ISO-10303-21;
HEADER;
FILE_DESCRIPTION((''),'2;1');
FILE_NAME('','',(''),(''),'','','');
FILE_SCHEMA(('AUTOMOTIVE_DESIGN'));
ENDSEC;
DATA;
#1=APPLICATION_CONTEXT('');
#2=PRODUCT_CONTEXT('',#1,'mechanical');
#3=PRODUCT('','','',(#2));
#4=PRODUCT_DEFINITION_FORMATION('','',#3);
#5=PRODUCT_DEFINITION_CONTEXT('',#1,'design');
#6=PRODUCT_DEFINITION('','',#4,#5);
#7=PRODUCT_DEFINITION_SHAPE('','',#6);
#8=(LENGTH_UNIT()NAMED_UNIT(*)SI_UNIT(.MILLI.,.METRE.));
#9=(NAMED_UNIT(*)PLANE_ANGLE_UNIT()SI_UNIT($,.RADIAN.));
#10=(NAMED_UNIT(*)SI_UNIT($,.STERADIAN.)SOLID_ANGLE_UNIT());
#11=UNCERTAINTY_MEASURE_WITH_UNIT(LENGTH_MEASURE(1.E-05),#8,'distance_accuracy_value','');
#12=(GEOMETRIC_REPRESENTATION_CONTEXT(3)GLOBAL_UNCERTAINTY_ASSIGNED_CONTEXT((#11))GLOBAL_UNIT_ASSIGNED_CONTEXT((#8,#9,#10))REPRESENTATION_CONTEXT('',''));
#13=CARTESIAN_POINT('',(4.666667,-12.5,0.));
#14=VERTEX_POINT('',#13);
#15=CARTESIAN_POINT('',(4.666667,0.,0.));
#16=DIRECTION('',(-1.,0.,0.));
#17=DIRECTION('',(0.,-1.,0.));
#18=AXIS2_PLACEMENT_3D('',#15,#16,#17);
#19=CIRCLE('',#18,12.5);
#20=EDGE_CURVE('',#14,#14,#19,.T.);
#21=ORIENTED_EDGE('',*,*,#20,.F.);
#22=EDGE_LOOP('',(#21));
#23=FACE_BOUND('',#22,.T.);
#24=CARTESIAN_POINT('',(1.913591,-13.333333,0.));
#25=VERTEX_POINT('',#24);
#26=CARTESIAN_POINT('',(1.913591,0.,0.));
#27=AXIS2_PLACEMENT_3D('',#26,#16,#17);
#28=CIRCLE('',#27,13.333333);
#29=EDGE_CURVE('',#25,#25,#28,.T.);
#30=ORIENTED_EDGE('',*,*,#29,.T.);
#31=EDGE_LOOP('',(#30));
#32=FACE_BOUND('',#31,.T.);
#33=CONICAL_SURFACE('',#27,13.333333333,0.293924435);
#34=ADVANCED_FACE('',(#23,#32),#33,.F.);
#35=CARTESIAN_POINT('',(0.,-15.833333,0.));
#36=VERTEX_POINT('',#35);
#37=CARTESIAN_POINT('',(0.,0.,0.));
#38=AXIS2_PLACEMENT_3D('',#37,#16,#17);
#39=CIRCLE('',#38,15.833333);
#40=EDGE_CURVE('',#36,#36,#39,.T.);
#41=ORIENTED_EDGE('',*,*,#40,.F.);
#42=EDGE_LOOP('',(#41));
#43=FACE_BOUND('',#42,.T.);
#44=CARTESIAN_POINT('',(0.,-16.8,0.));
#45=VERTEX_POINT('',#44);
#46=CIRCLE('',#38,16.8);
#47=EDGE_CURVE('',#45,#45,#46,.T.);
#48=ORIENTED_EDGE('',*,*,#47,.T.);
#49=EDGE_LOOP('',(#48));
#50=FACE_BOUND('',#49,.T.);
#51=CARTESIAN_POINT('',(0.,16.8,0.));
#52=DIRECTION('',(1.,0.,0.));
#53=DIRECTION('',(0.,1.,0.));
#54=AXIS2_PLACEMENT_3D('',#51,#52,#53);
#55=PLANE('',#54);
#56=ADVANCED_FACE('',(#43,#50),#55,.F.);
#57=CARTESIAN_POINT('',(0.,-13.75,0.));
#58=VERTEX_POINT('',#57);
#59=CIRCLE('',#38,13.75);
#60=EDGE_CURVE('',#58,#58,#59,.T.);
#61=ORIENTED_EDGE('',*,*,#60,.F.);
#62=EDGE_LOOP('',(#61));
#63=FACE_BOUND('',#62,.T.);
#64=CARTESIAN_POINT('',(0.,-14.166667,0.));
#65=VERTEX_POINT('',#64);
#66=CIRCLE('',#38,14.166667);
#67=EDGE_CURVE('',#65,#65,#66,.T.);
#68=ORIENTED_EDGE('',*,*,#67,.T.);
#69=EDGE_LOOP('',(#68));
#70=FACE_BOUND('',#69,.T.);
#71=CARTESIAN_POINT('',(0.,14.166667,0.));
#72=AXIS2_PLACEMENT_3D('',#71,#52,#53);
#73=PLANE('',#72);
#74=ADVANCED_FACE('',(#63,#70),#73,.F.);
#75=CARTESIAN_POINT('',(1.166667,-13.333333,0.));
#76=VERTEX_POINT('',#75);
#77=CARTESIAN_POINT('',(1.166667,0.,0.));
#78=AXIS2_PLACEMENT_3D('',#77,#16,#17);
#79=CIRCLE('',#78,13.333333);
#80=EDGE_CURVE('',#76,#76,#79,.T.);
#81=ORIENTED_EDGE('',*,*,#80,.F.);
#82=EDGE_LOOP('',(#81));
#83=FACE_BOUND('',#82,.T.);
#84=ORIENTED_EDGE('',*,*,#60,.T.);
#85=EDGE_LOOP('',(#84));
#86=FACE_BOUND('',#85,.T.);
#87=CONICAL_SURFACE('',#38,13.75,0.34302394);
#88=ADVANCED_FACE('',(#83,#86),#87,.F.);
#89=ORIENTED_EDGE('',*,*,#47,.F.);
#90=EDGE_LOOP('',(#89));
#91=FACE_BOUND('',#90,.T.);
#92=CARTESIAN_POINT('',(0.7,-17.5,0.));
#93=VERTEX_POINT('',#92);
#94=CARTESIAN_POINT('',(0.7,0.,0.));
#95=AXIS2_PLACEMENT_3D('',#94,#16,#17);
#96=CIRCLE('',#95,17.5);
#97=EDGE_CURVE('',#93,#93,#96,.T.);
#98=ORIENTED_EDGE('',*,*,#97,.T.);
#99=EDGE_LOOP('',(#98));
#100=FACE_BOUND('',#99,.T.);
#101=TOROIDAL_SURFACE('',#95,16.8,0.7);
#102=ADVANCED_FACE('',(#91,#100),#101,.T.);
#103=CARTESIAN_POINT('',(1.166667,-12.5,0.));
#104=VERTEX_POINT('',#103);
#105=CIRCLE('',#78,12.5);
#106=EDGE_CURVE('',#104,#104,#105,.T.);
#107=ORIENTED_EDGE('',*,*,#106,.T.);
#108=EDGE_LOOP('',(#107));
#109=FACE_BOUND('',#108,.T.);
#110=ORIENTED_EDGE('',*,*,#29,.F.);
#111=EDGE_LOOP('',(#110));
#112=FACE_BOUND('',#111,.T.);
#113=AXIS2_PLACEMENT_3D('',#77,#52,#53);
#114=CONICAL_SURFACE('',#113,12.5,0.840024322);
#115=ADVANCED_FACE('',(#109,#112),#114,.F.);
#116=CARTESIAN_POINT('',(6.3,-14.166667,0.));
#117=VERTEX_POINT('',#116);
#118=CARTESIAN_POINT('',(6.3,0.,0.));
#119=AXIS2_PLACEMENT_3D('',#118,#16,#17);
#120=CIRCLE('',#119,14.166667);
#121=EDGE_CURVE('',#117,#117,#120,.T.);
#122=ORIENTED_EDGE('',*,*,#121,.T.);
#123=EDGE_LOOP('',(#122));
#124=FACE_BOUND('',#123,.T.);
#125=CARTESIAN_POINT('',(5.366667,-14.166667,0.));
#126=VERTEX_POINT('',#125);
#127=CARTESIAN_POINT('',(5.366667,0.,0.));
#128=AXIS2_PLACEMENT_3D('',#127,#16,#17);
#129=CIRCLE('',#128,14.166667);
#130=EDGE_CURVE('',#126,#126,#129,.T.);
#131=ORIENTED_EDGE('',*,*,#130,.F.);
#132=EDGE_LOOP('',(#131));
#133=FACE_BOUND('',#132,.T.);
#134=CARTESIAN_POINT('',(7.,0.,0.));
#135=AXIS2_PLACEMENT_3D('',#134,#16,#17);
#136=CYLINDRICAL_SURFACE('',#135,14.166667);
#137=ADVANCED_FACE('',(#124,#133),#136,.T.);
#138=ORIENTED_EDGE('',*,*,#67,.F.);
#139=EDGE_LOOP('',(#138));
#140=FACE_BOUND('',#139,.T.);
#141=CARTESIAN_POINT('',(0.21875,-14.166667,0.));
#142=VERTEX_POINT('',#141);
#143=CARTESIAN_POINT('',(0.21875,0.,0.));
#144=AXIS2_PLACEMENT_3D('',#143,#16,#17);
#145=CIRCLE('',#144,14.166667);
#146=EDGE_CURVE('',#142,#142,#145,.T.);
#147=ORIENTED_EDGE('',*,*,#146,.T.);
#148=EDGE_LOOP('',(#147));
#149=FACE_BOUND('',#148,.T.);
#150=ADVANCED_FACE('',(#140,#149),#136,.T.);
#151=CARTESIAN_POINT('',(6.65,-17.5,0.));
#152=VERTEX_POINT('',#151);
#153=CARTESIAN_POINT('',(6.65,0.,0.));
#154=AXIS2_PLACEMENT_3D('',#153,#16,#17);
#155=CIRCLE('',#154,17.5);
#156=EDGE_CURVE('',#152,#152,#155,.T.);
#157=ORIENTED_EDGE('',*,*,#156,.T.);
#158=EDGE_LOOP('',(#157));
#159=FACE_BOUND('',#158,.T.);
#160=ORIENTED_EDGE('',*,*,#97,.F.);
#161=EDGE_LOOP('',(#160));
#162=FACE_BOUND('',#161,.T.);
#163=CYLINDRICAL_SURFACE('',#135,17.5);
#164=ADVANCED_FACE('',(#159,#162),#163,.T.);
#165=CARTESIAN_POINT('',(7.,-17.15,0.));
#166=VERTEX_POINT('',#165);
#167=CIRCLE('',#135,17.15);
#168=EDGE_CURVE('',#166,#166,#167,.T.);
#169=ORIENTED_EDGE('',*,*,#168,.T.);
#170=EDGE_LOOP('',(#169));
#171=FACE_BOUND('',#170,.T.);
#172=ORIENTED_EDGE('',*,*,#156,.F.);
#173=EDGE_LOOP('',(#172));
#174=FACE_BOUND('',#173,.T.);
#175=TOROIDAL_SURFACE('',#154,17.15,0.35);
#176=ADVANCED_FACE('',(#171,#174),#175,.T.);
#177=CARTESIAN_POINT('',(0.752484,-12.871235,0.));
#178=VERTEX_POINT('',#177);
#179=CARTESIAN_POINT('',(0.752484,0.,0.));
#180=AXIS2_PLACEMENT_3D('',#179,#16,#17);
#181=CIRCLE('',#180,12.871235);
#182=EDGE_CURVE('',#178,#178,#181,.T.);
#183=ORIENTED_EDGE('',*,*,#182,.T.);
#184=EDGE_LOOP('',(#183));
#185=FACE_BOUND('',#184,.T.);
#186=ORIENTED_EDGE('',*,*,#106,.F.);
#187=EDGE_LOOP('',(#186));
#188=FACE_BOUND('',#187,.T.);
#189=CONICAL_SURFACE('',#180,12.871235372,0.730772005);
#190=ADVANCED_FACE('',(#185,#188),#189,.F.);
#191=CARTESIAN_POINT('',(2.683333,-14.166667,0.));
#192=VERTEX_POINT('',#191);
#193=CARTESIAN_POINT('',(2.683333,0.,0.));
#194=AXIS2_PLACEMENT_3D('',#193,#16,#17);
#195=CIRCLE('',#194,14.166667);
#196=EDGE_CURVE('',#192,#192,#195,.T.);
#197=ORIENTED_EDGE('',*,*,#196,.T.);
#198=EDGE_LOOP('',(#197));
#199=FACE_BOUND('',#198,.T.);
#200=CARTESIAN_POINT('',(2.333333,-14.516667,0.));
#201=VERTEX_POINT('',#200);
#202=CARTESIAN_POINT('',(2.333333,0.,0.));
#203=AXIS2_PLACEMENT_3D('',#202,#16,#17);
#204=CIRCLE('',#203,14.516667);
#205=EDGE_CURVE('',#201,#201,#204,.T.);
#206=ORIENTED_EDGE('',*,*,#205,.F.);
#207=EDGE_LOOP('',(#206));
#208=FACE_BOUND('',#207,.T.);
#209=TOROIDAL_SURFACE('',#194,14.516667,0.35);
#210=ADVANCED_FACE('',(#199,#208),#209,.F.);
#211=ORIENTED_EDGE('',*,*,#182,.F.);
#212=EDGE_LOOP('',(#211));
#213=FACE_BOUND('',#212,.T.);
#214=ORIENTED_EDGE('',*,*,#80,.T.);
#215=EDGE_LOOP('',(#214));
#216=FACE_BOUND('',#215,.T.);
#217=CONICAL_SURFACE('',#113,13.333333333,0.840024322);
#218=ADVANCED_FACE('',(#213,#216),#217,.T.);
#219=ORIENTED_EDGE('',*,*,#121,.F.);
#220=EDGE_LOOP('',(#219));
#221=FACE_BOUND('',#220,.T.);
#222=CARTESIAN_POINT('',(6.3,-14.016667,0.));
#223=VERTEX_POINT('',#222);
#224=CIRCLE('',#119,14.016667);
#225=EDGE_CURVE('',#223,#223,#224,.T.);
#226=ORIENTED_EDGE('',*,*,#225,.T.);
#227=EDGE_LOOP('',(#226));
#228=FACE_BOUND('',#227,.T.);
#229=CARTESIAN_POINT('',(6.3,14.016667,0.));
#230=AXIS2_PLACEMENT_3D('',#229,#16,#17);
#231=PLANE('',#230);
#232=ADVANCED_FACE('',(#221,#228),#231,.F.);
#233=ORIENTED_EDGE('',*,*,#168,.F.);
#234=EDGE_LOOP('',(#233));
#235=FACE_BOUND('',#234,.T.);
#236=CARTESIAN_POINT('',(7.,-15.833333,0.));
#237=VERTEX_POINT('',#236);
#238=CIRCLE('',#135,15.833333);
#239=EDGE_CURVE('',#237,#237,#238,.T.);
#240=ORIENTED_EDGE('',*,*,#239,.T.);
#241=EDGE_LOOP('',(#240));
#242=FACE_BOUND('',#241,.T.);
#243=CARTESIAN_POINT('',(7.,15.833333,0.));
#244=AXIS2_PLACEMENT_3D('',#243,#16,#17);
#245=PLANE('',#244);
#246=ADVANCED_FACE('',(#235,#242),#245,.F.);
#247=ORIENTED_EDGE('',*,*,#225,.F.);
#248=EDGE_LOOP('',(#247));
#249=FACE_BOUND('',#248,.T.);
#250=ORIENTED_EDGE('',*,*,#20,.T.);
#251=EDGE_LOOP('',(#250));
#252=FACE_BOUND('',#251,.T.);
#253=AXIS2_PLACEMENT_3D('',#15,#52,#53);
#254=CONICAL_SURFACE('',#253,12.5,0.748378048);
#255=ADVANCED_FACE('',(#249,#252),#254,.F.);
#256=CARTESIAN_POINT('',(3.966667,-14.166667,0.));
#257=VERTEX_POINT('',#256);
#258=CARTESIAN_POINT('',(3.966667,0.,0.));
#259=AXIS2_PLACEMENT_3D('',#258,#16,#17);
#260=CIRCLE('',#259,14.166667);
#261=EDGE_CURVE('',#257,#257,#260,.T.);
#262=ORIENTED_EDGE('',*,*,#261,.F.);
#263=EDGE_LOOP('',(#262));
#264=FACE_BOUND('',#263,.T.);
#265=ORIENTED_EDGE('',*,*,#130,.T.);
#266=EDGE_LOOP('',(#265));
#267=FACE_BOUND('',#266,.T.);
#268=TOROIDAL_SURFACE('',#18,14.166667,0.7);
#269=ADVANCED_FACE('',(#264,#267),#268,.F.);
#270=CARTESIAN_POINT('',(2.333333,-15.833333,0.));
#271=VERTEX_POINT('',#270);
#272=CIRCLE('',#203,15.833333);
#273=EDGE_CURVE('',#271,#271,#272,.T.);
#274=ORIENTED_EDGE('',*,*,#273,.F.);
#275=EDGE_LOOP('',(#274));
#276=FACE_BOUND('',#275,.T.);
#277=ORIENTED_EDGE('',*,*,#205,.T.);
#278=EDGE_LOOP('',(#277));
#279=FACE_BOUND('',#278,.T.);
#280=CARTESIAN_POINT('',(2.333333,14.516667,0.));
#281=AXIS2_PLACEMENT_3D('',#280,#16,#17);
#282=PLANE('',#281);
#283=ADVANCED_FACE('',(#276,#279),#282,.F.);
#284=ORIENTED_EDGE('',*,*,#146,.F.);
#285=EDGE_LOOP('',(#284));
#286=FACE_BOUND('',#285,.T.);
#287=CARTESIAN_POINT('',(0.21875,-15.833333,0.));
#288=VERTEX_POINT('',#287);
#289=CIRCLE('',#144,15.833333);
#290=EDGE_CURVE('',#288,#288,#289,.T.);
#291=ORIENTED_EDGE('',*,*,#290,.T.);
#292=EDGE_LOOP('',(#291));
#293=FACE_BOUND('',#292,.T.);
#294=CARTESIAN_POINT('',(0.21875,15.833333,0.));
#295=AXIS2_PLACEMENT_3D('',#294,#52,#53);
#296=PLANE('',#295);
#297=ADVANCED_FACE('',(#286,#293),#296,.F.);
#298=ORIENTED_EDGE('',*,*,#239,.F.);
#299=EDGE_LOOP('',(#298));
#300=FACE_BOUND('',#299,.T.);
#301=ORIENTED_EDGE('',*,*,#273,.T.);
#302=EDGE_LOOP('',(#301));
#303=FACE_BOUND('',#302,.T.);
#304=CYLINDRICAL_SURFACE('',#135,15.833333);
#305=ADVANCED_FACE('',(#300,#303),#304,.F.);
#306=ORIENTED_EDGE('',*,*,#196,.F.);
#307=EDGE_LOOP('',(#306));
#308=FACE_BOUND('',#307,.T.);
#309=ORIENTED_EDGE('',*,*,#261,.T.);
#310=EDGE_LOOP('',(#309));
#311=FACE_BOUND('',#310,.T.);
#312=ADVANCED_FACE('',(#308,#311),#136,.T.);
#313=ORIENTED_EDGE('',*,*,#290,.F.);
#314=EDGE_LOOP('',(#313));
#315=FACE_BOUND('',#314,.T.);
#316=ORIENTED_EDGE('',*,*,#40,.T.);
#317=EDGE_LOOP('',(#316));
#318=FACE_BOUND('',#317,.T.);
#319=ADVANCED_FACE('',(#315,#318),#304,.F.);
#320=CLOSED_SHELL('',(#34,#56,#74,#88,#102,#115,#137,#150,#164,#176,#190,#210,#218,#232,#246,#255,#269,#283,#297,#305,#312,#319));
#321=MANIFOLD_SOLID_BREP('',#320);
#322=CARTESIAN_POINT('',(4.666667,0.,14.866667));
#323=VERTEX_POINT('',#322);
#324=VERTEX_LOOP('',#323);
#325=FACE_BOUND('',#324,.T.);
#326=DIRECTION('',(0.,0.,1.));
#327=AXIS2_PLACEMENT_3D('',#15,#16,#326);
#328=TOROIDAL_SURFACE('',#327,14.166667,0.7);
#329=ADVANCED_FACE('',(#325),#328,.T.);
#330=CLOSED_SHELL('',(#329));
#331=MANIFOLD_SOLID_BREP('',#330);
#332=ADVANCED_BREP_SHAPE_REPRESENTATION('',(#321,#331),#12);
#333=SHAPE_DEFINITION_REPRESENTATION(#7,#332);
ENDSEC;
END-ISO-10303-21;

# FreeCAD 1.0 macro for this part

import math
import FreeCAD as App
import Part
import Sketcher

doc = App.newDocument("Part")
params = doc.addObject("Spreadsheet::Sheet", "Params")
for row, (alias, value) in enumerate([
    ("sketch1_radius", "0.7 mm"),
    ("sketch1_radius2", "0.35 mm"),
    ("sketch1_height", "0.15 mm"),
    ("revolution_angle", "360 deg"),
    ("sketch2_diameter", "1.4 mm"),
    ("revolution2_angle", "360 deg"),
], start=1):
    params.set(f"A{row}", alias)
    params.set(f"B{row}", "=" + value)
    params.setAlias(f"B{row}", alias)

body = doc.addObject("PartDesign::Body", "Body")

sketch1 = body.newObject("Sketcher::SketchObject", "Sketch")
sketch1.AttachmentSupport = (doc.getObject("XY_Plane"), [""])
sketch1.MapMode = "FlatFace"
sketch1.addGeometry(Part.LineSegment(App.Vector(0, 15.83, 0), App.Vector(0.22, 15.83, 0)), False)
sketch1.addGeometry(Part.LineSegment(App.Vector(0.22, 15.83, 0), App.Vector(0.22, 14.17, 0)), False)
sketch1.addGeometry(Part.LineSegment(App.Vector(0.22, 14.17, 0), App.Vector(0, 14.17, 0)), False)
sketch1.addGeometry(Part.LineSegment(App.Vector(0, 14.17, 0), App.Vector(0, 13.75, 0)), False)
sketch1.addGeometry(Part.LineSegment(App.Vector(0, 13.75, 0), App.Vector(1.17, 13.33, 0)), False)
sketch1.addGeometry(Part.LineSegment(App.Vector(1.17, 13.33, 0), App.Vector(0.75, 12.87, 0)), False)
sketch1.addGeometry(Part.LineSegment(App.Vector(0.75, 12.87, 0), App.Vector(1.17, 12.5, 0)), False)
sketch1.addGeometry(Part.LineSegment(App.Vector(1.17, 12.5, 0), App.Vector(1.91, 13.33, 0)), False)
sketch1.addGeometry(Part.LineSegment(App.Vector(1.91, 13.33, 0), App.Vector(4.67, 12.5, 0)), False)
sketch1.addGeometry(Part.LineSegment(App.Vector(4.67, 12.5, 0), App.Vector(6.3, 14.02, 0)), False)
sketch1.addGeometry(Part.LineSegment(App.Vector(6.3, 14.02, 0), App.Vector(6.3, 14.17, 0)), False)
sketch1.addGeometry(Part.LineSegment(App.Vector(6.3, 14.17, 0), App.Vector(5.37, 14.17, 0)), False)
sketch1.addGeometry(Part.ArcOfCircle(Part.Circle(App.Vector(4.67, 14.17, 0), App.Vector(0, 0, 1), 0.7), math.radians(180), math.radians(360)), False)
sketch1.addGeometry(Part.LineSegment(App.Vector(3.97, 14.17, 0), App.Vector(2.68, 14.17, 0)), False)
sketch1.addGeometry(Part.ArcOfCircle(Part.Circle(App.Vector(2.68, 14.52, 0), App.Vector(0, 0, 1), 0.35), math.radians(180), math.radians(270)), False)
sketch1.addGeometry(Part.LineSegment(App.Vector(2.33, 14.52, 0), App.Vector(2.33, 15.83, 0)), False)
sketch1.addGeometry(Part.LineSegment(App.Vector(2.33, 15.83, 0), App.Vector(7, 15.83, 0)), False)
sketch1.addGeometry(Part.LineSegment(App.Vector(7, 15.83, 0), App.Vector(7, 17.15, 0)), False)
sketch1.addGeometry(Part.ArcOfCircle(Part.Circle(App.Vector(6.65, 17.15, 0), App.Vector(0, 0, 1), 0.35), math.radians(0), math.radians(90)), False)
sketch1.addGeometry(Part.LineSegment(App.Vector(6.65, 17.5, 0), App.Vector(0.7, 17.5, 0)), False)
sketch1.addGeometry(Part.ArcOfCircle(Part.Circle(App.Vector(0.7, 16.8, 0), App.Vector(0, 0, 1), 0.7), math.radians(90), math.radians(180)), False)
sketch1.addGeometry(Part.LineSegment(App.Vector(0, 16.8, 0), App.Vector(0, 15.83, 0)), False)
sketch1.addConstraint(Sketcher.Constraint("Coincident", 0, 2, 1, 1))
sketch1.addConstraint(Sketcher.Constraint("Coincident", 1, 2, 2, 1))
sketch1.addConstraint(Sketcher.Constraint("Coincident", 2, 2, 3, 1))
sketch1.addConstraint(Sketcher.Constraint("Coincident", 3, 2, 4, 1))
sketch1.addConstraint(Sketcher.Constraint("Coincident", 4, 2, 5, 1))
sketch1.addConstraint(Sketcher.Constraint("Coincident", 5, 2, 6, 1))
sketch1.addConstraint(Sketcher.Constraint("Coincident", 6, 2, 7, 1))
sketch1.addConstraint(Sketcher.Constraint("Coincident", 7, 2, 8, 1))
sketch1.addConstraint(Sketcher.Constraint("Coincident", 8, 2, 9, 1))
sketch1.addConstraint(Sketcher.Constraint("Coincident", 9, 2, 10, 1))
sketch1.addConstraint(Sketcher.Constraint("Coincident", 10, 2, 11, 1))
sketch1.addConstraint(Sketcher.Constraint("Coincident", 11, 2, 12, 2))
sketch1.addConstraint(Sketcher.Constraint("Coincident", 12, 1, 13, 1))
sketch1.addConstraint(Sketcher.Constraint("Tangent", 13, 2, 14, 2))
sketch1.addConstraint(Sketcher.Constraint("Tangent", 14, 1, 15, 1))
sketch1.addConstraint(Sketcher.Constraint("Coincident", 15, 2, 16, 1))
sketch1.addConstraint(Sketcher.Constraint("Coincident", 16, 2, 17, 1))
sketch1.addConstraint(Sketcher.Constraint("Tangent", 17, 2, 18, 1))
sketch1.addConstraint(Sketcher.Constraint("Tangent", 18, 2, 19, 1))
sketch1.addConstraint(Sketcher.Constraint("Tangent", 19, 2, 20, 1))
sketch1.addConstraint(Sketcher.Constraint("Tangent", 20, 2, 21, 1))
sketch1.addConstraint(Sketcher.Constraint("Coincident", 21, 2, 0, 1))
sketch1.addConstraint(Sketcher.Constraint("Horizontal", 0))
sketch1.addConstraint(Sketcher.Constraint("Vertical", 1))
sketch1.addConstraint(Sketcher.Constraint("Horizontal", 2))
sketch1.addConstraint(Sketcher.Constraint("Vertical", 3))
sketch1.addConstraint(Sketcher.Constraint("Vertical", 10))
sketch1.addConstraint(Sketcher.Constraint("Horizontal", 11))
sketch1.addConstraint(Sketcher.Constraint("Horizontal", 13))
sketch1.addConstraint(Sketcher.Constraint("Vertical", 15))
sketch1.addConstraint(Sketcher.Constraint("Horizontal", 16))
sketch1.addConstraint(Sketcher.Constraint("Vertical", 17))
sketch1.addConstraint(Sketcher.Constraint("Horizontal", 19))
sketch1.addConstraint(Sketcher.Constraint("Vertical", 21))
sketch1.addConstraint(Sketcher.Constraint("Equal", 14, 18))
sketch1.addConstraint(Sketcher.Constraint("Equal", 12, 20))
sketch1.addConstraint(Sketcher.Constraint("PointOnObject", 2, 2, -2))
sketch1.addConstraint(Sketcher.Constraint("PointOnObject", 20, 2, -2))
sketch1.addConstraint(Sketcher.Constraint("Perpendicular", 5, 6))
sketch1.addConstraint(Sketcher.Constraint("Perpendicular", 6, 7))
sketch1.addConstraint(Sketcher.Constraint("Horizontal", 12, 3, 1, 2))
sketch1.addConstraint(Sketcher.Constraint("Horizontal", 4, 2, 7, 2))
sketch1.addConstraint(Sketcher.Constraint("Horizontal", 6, 2, 8, 2))
sketch1.addConstraint(Sketcher.Constraint("Horizontal", 2, 2, 10, 2))
sketch1.addConstraint(Sketcher.Constraint("Horizontal", 11, 2, 12, 1))
sketch1.addConstraint(Sketcher.Constraint("Horizontal", 0, 2, 15, 2))
sketch1.addConstraint(Sketcher.Constraint("Vertical", 4, 2, 6, 2))
sketch1.addConstraint(Sketcher.Constraint("Vertical", 12, 3, 8, 2))
sketch1.addConstraint(Sketcher.Constraint("Equal", 15, 17))
sketch1.addConstraint(Sketcher.Constraint("Radius", 12, 0.7))
sketch1.addConstraint(Sketcher.Constraint("Radius", 14, 0.35))
sketch1.addConstraint(Sketcher.Constraint("DistanceX", -1, 1, 16, 2, 7.0))
sketch1.addConstraint(Sketcher.Constraint("DistanceY", 10, 1, 10, 2, 0.15))
sketch1.addConstraint(Sketcher.Constraint("DistanceY", -1, 1, 20, 3, 16.8))
sketch1.addConstraint(Sketcher.Constraint("DistanceY", -1, 1, 6, 2, 12.5))
sketch1.addConstraint(Sketcher.Constraint("DistanceX", -1, 1, 9, 2, 6.3))
sketch1.addConstraint(Sketcher.Constraint("DistanceY", 4, 2, 0, 2, 2.5))
sketch1.addConstraint(Sketcher.Constraint("DistanceX", 6, 2, 8, 2, 3.5))
sketch1.addConstraint(Sketcher.Constraint("DistanceY", -1, 1, 3, 2, 13.75))
sketch1.addConstraint(Sketcher.Constraint("DistanceX", 0, 1, 0, 2, 0.21875))
sketch1.addConstraint(Sketcher.Constraint("Distance", 4, 1.238839))
sketch1.addConstraint(Sketcher.Constraint("Distance", 5, 0.620549))
sketch1.addConstraint(Sketcher.Constraint("Distance", 7, 1.11908))
sketch1.addConstraint(Sketcher.Constraint("DistanceX", 13, 2, 13, 1, 1.283333))
sketch1.setExpression("Constraints[49]", "Params.sketch1_radius")
sketch1.setExpression("Constraints[50]", "Params.sketch1_radius2")
sketch1.setExpression("Constraints[52]", "Params.sketch1_height")
revolution = body.newObject("PartDesign::Revolution", "Revolution")
revolution.Profile = sketch1
revolution.ReferenceAxis = (sketch1, ["H_Axis"])
revolution.setExpression("Angle", "Params.revolution_angle")
body2 = doc.addObject("PartDesign::Body", "Body001")

sketch2 = body2.newObject("Sketcher::SketchObject", "Sketch001")
sketch2.AttachmentSupport = (doc.getObject("XY_Plane001"), [""])
sketch2.MapMode = "FlatFace"
sketch2.addGeometry(Part.Circle(App.Vector(4.7, 14.2, 0), App.Vector(0, 0, 1), 0.7), False)
sketch2.addConstraint(Sketcher.Constraint("Diameter", 0, 1.4))
sketch2.addConstraint(Sketcher.Constraint("DistanceX", -1, 1, 0, 3, 4.666667))
sketch2.addConstraint(Sketcher.Constraint("DistanceY", -1, 1, 0, 3, 14.166667))
sketch2.setExpression("Constraints[0]", "Params.sketch2_diameter")
revolution2 = body2.newObject("PartDesign::Revolution", "Revolution001")
revolution2.Profile = sketch2
revolution2.ReferenceAxis = (sketch2, ["H_Axis"])
revolution2.setExpression("Angle", "Params.revolution2_angle")

doc.recompute()
